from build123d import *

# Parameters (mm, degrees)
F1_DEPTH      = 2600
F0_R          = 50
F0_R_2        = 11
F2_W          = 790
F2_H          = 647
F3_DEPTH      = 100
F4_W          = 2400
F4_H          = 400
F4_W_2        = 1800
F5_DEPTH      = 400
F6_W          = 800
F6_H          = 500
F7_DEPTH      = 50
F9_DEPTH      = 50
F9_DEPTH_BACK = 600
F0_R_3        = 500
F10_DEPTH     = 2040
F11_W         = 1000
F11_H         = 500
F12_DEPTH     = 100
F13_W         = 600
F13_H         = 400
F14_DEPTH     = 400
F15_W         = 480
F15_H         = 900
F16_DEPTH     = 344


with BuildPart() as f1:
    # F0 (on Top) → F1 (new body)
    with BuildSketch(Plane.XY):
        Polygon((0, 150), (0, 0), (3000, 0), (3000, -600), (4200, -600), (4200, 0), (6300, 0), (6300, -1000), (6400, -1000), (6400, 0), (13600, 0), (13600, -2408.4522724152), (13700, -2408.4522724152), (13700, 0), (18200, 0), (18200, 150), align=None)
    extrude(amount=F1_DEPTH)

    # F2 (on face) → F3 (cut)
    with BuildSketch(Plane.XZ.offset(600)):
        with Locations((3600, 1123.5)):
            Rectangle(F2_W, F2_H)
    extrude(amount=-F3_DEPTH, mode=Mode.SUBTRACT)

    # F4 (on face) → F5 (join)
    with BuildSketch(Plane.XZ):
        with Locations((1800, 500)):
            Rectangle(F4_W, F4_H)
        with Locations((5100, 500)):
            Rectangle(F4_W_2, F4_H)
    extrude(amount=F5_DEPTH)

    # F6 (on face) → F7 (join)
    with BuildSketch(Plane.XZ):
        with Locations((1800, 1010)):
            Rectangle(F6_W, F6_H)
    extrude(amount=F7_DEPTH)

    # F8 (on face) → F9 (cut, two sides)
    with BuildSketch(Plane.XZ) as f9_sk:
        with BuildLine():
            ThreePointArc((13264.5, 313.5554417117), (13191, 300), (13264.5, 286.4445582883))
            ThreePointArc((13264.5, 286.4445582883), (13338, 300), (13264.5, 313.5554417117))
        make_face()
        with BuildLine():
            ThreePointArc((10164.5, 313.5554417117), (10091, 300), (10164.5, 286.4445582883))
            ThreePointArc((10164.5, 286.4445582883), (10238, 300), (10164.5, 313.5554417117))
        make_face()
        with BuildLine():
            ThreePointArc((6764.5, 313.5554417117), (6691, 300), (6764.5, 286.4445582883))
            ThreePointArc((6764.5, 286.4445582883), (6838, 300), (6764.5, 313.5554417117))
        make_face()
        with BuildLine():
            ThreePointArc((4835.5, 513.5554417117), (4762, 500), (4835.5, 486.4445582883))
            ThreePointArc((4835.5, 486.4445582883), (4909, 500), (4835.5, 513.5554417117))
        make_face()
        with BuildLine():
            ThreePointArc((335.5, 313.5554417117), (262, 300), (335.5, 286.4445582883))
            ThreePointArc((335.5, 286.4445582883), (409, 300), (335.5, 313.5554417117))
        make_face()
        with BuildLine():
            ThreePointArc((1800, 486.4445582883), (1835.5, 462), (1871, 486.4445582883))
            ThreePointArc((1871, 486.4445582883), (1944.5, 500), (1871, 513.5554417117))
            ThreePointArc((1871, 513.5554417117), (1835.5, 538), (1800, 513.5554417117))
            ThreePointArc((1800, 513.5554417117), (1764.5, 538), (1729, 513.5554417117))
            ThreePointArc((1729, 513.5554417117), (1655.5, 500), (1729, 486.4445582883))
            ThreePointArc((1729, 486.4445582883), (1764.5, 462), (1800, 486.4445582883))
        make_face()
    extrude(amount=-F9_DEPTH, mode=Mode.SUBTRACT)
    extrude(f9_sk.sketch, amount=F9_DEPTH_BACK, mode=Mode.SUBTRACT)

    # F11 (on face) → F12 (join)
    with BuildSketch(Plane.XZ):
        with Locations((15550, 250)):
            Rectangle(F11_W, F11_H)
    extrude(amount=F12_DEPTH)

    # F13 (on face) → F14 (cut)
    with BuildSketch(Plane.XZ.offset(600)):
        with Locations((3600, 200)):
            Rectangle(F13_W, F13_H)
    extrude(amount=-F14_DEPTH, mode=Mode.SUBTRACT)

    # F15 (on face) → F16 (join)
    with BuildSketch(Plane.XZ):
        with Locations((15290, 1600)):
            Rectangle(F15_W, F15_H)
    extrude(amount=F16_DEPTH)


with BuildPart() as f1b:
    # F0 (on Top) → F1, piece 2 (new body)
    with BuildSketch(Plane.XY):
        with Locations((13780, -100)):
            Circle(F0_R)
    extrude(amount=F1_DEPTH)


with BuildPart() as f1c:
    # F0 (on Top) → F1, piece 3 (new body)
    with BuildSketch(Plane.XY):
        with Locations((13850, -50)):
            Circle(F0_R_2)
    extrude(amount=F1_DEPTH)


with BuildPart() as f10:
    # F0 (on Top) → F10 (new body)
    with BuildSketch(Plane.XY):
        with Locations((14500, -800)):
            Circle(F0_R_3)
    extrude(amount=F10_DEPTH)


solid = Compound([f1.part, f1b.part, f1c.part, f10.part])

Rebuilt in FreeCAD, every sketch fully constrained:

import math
import FreeCAD as App
import Part
import Sketcher

doc = App.newDocument("Part")
body = doc.addObject("PartDesign::Body", "Body")

# Sketch on XY plane
sketch1 = body.newObject("Sketcher::SketchObject", "Sketch")
sketch1.AttachmentSupport = (doc.getObject("XY_Plane"), [""])
sketch1.MapMode = "FlatFace"
sketch1.addGeometry([
    Part.LineSegment(App.Vector(0, 150, 0), App.Vector(0, 0, 0)),  # 0
    Part.LineSegment(App.Vector(0, 0, 0), App.Vector(3000, 0, 0)),  # 1
    Part.LineSegment(App.Vector(3000, 0, 0), App.Vector(3000, -600, 0)),  # 2
    Part.LineSegment(App.Vector(3000, -600, 0), App.Vector(4200, -600, 0)),  # 3
    Part.LineSegment(App.Vector(4200, -600, 0), App.Vector(4200, 0, 0)),  # 4
    Part.LineSegment(App.Vector(4200, 0, 0), App.Vector(6300, 0, 0)),  # 5
    Part.LineSegment(App.Vector(6300, 0, 0), App.Vector(6300, -1000, 0)),  # 6
    Part.LineSegment(App.Vector(6300, -1000, 0), App.Vector(6400, -1000, 0)),  # 7
    Part.LineSegment(App.Vector(6400, -1000, 0), App.Vector(6400, 0, 0)),  # 8
    Part.LineSegment(App.Vector(6400, 0, 0), App.Vector(13600, 0, 0)),  # 9
    Part.LineSegment(App.Vector(13600, 0, 0), App.Vector(13600, -2408, 0)),  # 10
    Part.LineSegment(App.Vector(13600, -2408, 0), App.Vector(13700, -2408, 0)),  # 11
    Part.LineSegment(App.Vector(13700, -2408, 0), App.Vector(13700, 0, 0)),  # 12
    Part.LineSegment(App.Vector(13700, 0, 0), App.Vector(18200, 0, 0)),  # 13
    Part.LineSegment(App.Vector(18200, 0, 0), App.Vector(18200, 150, 0)),  # 14
    Part.LineSegment(App.Vector(18200, 150, 0), App.Vector(0, 150, 0)),  # 15
], False)
sketch1.addConstraint([
    Sketcher.Constraint("Coincident", 0, 2, 1, 1),
    Sketcher.Constraint("Coincident", 1, 2, 2, 1),
    Sketcher.Constraint("Coincident", 2, 2, 3, 1),
    Sketcher.Constraint("Coincident", 3, 2, 4, 1),
    Sketcher.Constraint("Coincident", 4, 2, 5, 1),
    Sketcher.Constraint("Coincident", 5, 2, 6, 1),
    Sketcher.Constraint("Coincident", 6, 2, 7, 1),
    Sketcher.Constraint("Coincident", 7, 2, 8, 1),
    Sketcher.Constraint("Coincident", 8, 2, 9, 1),
    Sketcher.Constraint("Coincident", 9, 2, 10, 1),
    Sketcher.Constraint("Coincident", 10, 2, 11, 1),
    Sketcher.Constraint("Coincident", 11, 2, 12, 1),
    Sketcher.Constraint("Coincident", 12, 2, 13, 1),
    Sketcher.Constraint("Coincident", 13, 2, 14, 1),
    Sketcher.Constraint("Coincident", 14, 2, 15, 1),
    Sketcher.Constraint("Coincident", 15, 2, 0, 1),
    Sketcher.Constraint("Vertical", 0),
    Sketcher.Constraint("Horizontal", 1),
    Sketcher.Constraint("Vertical", 2),
    Sketcher.Constraint("Horizontal", 3),
    Sketcher.Constraint("Vertical", 4),
    Sketcher.Constraint("Horizontal", 5),
    Sketcher.Constraint("Vertical", 6),
    Sketcher.Constraint("Horizontal", 7),
    Sketcher.Constraint("Vertical", 8),
    Sketcher.Constraint("Horizontal", 9),
    Sketcher.Constraint("Vertical", 10),
    Sketcher.Constraint("Horizontal", 11),
    Sketcher.Constraint("Vertical", 12),
    Sketcher.Constraint("Horizontal", 13),
    Sketcher.Constraint("Vertical", 14),
    Sketcher.Constraint("Horizontal", 15),
    Sketcher.Constraint("Coincident", 0, 2, -1, 1),
    Sketcher.Constraint("PointOnObject", 4, 2, -1),
    Sketcher.Constraint("PointOnObject", 8, 2, -1),
    Sketcher.Constraint("PointOnObject", 12, 2, -1),
    Sketcher.Constraint("Equal", 7, 11),
    Sketcher.Constraint("DistanceX", 1, 1, 1, 2, 3000.0),
    Sketcher.Constraint("DistanceX", 3, 1, 3, 2, 1200.0),
    Sketcher.Constraint("DistanceX", 5, 1, 5, 2, 2100.0),
    Sketcher.Constraint("DistanceX", 7, 1, 7, 2, 100.0),
    Sketcher.Constraint("DistanceX", 9, 1, 9, 2, 7200.0),
    Sketcher.Constraint("DistanceX", 13, 1, 13, 2, 4500.0),
    Sketcher.Constraint("DistanceY", 0, 2, 0, 1, 150.0),
    Sketcher.Constraint("DistanceY", 2, 2, 2, 1, 600.0),
    Sketcher.Constraint("DistanceY", 6, 2, 6, 1, 1000.0),
    Sketcher.Constraint("DistanceY", 10, 2, 10, 1, 2408.452272),
])
pad1 = body.newObject("PartDesign::Pad", "Pad")
pad1.Profile = sketch1
pad1.Length = 2600

# Sketch on XZ plane
sketch2 = body.newObject("Sketcher::SketchObject", "Sketch001")
sketch2.AttachmentSupport = (doc.getObject("XZ_Plane"), [""])
sketch2.MapMode = "FlatFace"
sketch2.AttachmentOffset = App.Placement(App.Vector(0, 0, 600), App.Rotation())
sketch2.addGeometry([
    Part.LineSegment(App.Vector(3205, 1447, 0), App.Vector(3205, 800, 0)),
    Part.LineSegment(App.Vector(3205, 800, 0), App.Vector(3995, 800, 0)),
    Part.LineSegment(App.Vector(3995, 800, 0), App.Vector(3995, 1447, 0)),
    Part.LineSegment(App.Vector(3995, 1447, 0), App.Vector(3205, 1447, 0)),
], False)
sketch2.addConstraint([
    Sketcher.Constraint("Coincident", 0, 2, 1, 1),
    Sketcher.Constraint("Coincident", 1, 2, 2, 1),
    Sketcher.Constraint("Coincident", 2, 2, 3, 1),
    Sketcher.Constraint("Coincident", 3, 2, 0, 1),
    Sketcher.Constraint("Vertical", 0),
    Sketcher.Constraint("Horizontal", 1),
    Sketcher.Constraint("Vertical", 2),
    Sketcher.Constraint("Horizontal", 3),
    Sketcher.Constraint("DistanceX", 1, 1, 1, 2, 790.0),
    Sketcher.Constraint("DistanceY", 0, 2, 0, 1, 647.0),
    Sketcher.Constraint("DistanceX", -1, 1, 0, 2, 3205.0),
    Sketcher.Constraint("DistanceY", -1, 1, 0, 2, 800.0),
])
pocket1 = body.newObject("PartDesign::Pocket", "Pocket")
pocket1.Profile = sketch2
pocket1.Length = 100

# Sketch on XZ plane
sketch3 = body.newObject("Sketcher::SketchObject", "Sketch002")
sketch3.AttachmentSupport = (doc.getObject("XZ_Plane"), [""])
sketch3.MapMode = "FlatFace"
sketch3.addGeometry([
    Part.LineSegment(App.Vector(600, 700, 0), App.Vector(600, 300, 0)),  # 0
    Part.LineSegment(App.Vector(600, 300, 0), App.Vector(3000, 300, 0)),  # 1
    Part.LineSegment(App.Vector(3000, 300, 0), App.Vector(3000, 700, 0)),  # 2
    Part.LineSegment(App.Vector(3000, 700, 0), App.Vector(600, 700, 0)),  # 3
    Part.LineSegment(App.Vector(4200, 700, 0), App.Vector(4200, 300, 0)),  # 4
    Part.LineSegment(App.Vector(4200, 300, 0), App.Vector(6000, 300, 0)),  # 5
    Part.LineSegment(App.Vector(6000, 300, 0), App.Vector(6000, 700, 0)),  # 6
    Part.LineSegment(App.Vector(6000, 700, 0), App.Vector(4200, 700, 0)),  # 7
], False)
sketch3.addConstraint([
    Sketcher.Constraint("Coincident", 0, 2, 1, 1),
    Sketcher.Constraint("Coincident", 1, 2, 2, 1),
    Sketcher.Constraint("Coincident", 2, 2, 3, 1),
    Sketcher.Constraint("Coincident", 3, 2, 0, 1),
    Sketcher.Constraint("Coincident", 4, 2, 5, 1),
    Sketcher.Constraint("Coincident", 5, 2, 6, 1),
    Sketcher.Constraint("Coincident", 6, 2, 7, 1),
    Sketcher.Constraint("Coincident", 7, 2, 4, 1),
    Sketcher.Constraint("Vertical", 0),
    Sketcher.Constraint("Horizontal", 1),
    Sketcher.Constraint("Vertical", 2),
    Sketcher.Constraint("Horizontal", 3),
    Sketcher.Constraint("Vertical", 4),
    Sketcher.Constraint("Horizontal", 5),
    Sketcher.Constraint("Vertical", 6),
    Sketcher.Constraint("Horizontal", 7),
    Sketcher.Constraint("Horizontal", 1, 2, 4, 2),
    Sketcher.Constraint("Horizontal", 3, 2, 6, 2),
    Sketcher.Constraint("DistanceX", 1, 1, 1, 2, 2400.0),
    Sketcher.Constraint("DistanceX", 5, 1, 5, 2, 1800.0),
    Sketcher.Constraint("DistanceY", 0, 2, 0, 1, 400.0),
    Sketcher.Constraint("DistanceX", -1, 1, 0, 2, 600.0),
    Sketcher.Constraint("DistanceY", -1, 1, 0, 2, 300.0),
    Sketcher.Constraint("DistanceX", -1, 1, 4, 2, 4200.0),
])
pad2 = body.newObject("PartDesign::Pad", "Pad001")
pad2.Profile = sketch3
pad2.Length = 400

# Sketch on XZ plane
sketch4 = body.newObject("Sketcher::SketchObject", "Sketch003")
sketch4.AttachmentSupport = (doc.getObject("XZ_Plane"), [""])
sketch4.MapMode = "FlatFace"
sketch4.addGeometry([
    Part.LineSegment(App.Vector(1400, 1260, 0), App.Vector(1400, 760, 0)),
    Part.LineSegment(App.Vector(1400, 760, 0), App.Vector(2200, 760, 0)),
    Part.LineSegment(App.Vector(2200, 760, 0), App.Vector(2200, 1260, 0)),
    Part.LineSegment(App.Vector(2200, 1260, 0), App.Vector(1400, 1260, 0)),
], False)
sketch4.addConstraint([
    Sketcher.Constraint("Coincident", 0, 2, 1, 1),
    Sketcher.Constraint("Coincident", 1, 2, 2, 1),
    Sketcher.Constraint("Coincident", 2, 2, 3, 1),
    Sketcher.Constraint("Coincident", 3, 2, 0, 1),
    Sketcher.Constraint("Vertical", 0),
    Sketcher.Constraint("Horizontal", 1),
    Sketcher.Constraint("Vertical", 2),
    Sketcher.Constraint("Horizontal", 3),
    Sketcher.Constraint("DistanceX", 1, 1, 1, 2, 800.0),
    Sketcher.Constraint("DistanceY", 0, 2, 0, 1, 500.0),
    Sketcher.Constraint("DistanceX", -1, 1, 0, 2, 1400.0),
    Sketcher.Constraint("DistanceY", -1, 1, 0, 2, 760.0),
])
pad3 = body.newObject("PartDesign::Pad", "Pad002")
pad3.Profile = sketch4
pad3.Length = 50

# Sketch on XZ plane
sketch5 = body.newObject("Sketcher::SketchObject", "Sketch004")
sketch5.AttachmentSupport = (doc.getObject("XZ_Plane"), [""])
sketch5.MapMode = "FlatFace"
sketch5.addGeometry([
    Part.ArcOfCircle(Part.Circle(App.Vector(13229, 300, 0), App.Vector(0, 0, 1), 38), math.radians(21), math.radians(339)),  # 0
    Part.ArcOfCircle(Part.Circle(App.Vector(13300, 300, 0), App.Vector(0, 0, 1), 38), math.radians(-159), math.radians(159)),  # 1
    Part.ArcOfCircle(Part.Circle(App.Vector(10129, 300, 0), App.Vector(0, 0, 1), 38), math.radians(21), math.radians(339)),  # 2
    Part.ArcOfCircle(Part.Circle(App.Vector(10200, 300, 0), App.Vector(0, 0, 1), 38), math.radians(-159), math.radians(159)),  # 3
    Part.ArcOfCircle(Part.Circle(App.Vector(6729, 300, 0), App.Vector(0, 0, 1), 38), math.radians(21), math.radians(339)),  # 4
    Part.ArcOfCircle(Part.Circle(App.Vector(6800, 300, 0), App.Vector(0, 0, 1), 38), math.radians(-159), math.radians(159)),  # 5
    Part.ArcOfCircle(Part.Circle(App.Vector(4800, 500, 0), App.Vector(0, 0, 1), 38), math.radians(21), math.radians(339)),  # 6
    Part.ArcOfCircle(Part.Circle(App.Vector(4871, 500, 0), App.Vector(0, 0, 1), 38), math.radians(-159), math.radians(159)),  # 7
    Part.ArcOfCircle(Part.Circle(App.Vector(300, 300, 0), App.Vector(0, 0, 1), 38), math.radians(21), math.radians(339)),  # 8
    Part.ArcOfCircle(Part.Circle(App.Vector(371, 300, 0), App.Vector(0, 0, 1), 38), math.radians(-159), math.radians(159)),  # 9
    Part.ArcOfCircle(Part.Circle(App.Vector(1836, 500, 0), App.Vector(0, 0, 1), 38), math.radians(-159), math.radians(-21)),  # 10
    Part.ArcOfCircle(Part.Circle(App.Vector(1906, 500, 0), App.Vector(0, 0, 1), 38), math.radians(-159), math.radians(159)),  # 11
    Part.ArcOfCircle(Part.Circle(App.Vector(1836, 500, 0), App.Vector(0, 0, 1), 38), math.radians(21), math.radians(159)),  # 12
    Part.ArcOfCircle(Part.Circle(App.Vector(1764, 500, 0), App.Vector(0, 0, 1), 38), math.radians(21), math.radians(159)),  # 13
    Part.ArcOfCircle(Part.Circle(App.Vector(1694, 500, 0), App.Vector(0, 0, 1), 38), math.radians(21), math.radians(339)),  # 14
    Part.ArcOfCircle(Part.Circle(App.Vector(1764, 500, 0), App.Vector(0, 0, 1), 38), math.radians(-159), math.radians(-21)),  # 15
], False)
sketch5.addConstraint([
    Sketcher.Constraint("Coincident", 0, 1, 1, 2),
    Sketcher.Constraint("Coincident", 1, 1, 0, 2),
    Sketcher.Constraint("Coincident", 2, 1, 3, 2),
    Sketcher.Constraint("Coincident", 3, 1, 2, 2),
    Sketcher.Constraint("Coincident", 4, 1, 5, 2),
    Sketcher.Constraint("Coincident", 5, 1, 4, 2),
    Sketcher.Constraint("Coincident", 6, 1, 7, 2),
    Sketcher.Constraint("Coincident", 7, 1, 6, 2),
    Sketcher.Constraint("Coincident", 8, 1, 9, 2),
    Sketcher.Constraint("Coincident", 9, 1, 8, 2),
    Sketcher.Constraint("Coincident", 10, 2, 11, 1),
    Sketcher.Constraint("Coincident", 11, 2, 12, 1),
    Sketcher.Constraint("Coincident", 12, 2, 13, 1),
    Sketcher.Constraint("Coincident", 13, 2, 14, 1),
    Sketcher.Constraint("Coincident", 14, 2, 15, 1),
    Sketcher.Constraint("Coincident", 15, 2, 10, 1),
    Sketcher.Constraint("Coincident", 12, 3, 10, 3),
    Sketcher.Constraint("Coincident", 15, 3, 13, 3),
    Sketcher.Constraint("Equal", 0, 1),
    Sketcher.Constraint("Equal", 1, 2),
    Sketcher.Constraint("Equal", 2, 3),
    Sketcher.Constraint("Equal", 3, 4),
    Sketcher.Constraint("Equal", 4, 5),
    Sketcher.Constraint("Equal", 5, 6),
    Sketcher.Constraint("Equal", 6, 7),
    Sketcher.Constraint("Equal", 7, 8),
    Sketcher.Constraint("Equal", 8, 9),
    Sketcher.Constraint("Equal", 9, 10),
    Sketcher.Constraint("Equal", 10, 11),
    Sketcher.Constraint("Equal", 11, 12),
    Sketcher.Constraint("Equal", 12, 13),
    Sketcher.Constraint("Equal", 13, 14),
    Sketcher.Constraint("Equal", 14, 15),
    Sketcher.Constraint("Horizontal", 0, 3, 1, 3),
    Sketcher.Constraint("Horizontal", 1, 3, 2, 3),
    Sketcher.Constraint("Horizontal", 2, 3, 3, 3),
    Sketcher.Constraint("Horizontal", 3, 3, 4, 3),
    Sketcher.Constraint("Horizontal", 4, 3, 5, 3),
    Sketcher.Constraint("Horizontal", 6, 3, 7, 3),
    Sketcher.Constraint("Horizontal", 5, 3, 8, 3),
    Sketcher.Constraint("Horizontal", 8, 3, 9, 3),
    Sketcher.Constraint("Horizontal", 7, 3, 10, 3),
    Sketcher.Constraint("Horizontal", 10, 3, 11, 3),
    Sketcher.Constraint("Horizontal", 12, 3, 13, 3),
    Sketcher.Constraint("Horizontal", 13, 3, 14, 3),
    Sketcher.Constraint("Horizontal", 0, 1, 2, 1),
    Sketcher.Constraint("Horizontal", 2, 1, 4, 1),
    Sketcher.Constraint("Horizontal", 4, 1, 8, 1),
    Sketcher.Constraint("Horizontal", 7, 1, 10, 2),
    Sketcher.Constraint("Horizontal", 11, 2, 12, 2),
    Sketcher.Constraint("Horizontal", 12, 2, 13, 2),
    Sketcher.Constraint("Radius", 0, 38.0),
    Sketcher.Constraint("DistanceX", -1, 1, 0, 3, 13229.0),
    Sketcher.Constraint("DistanceY", -1, 1, 0, 3, 300.0),
    Sketcher.Constraint("DistanceX", -1, 1, 1, 3, 13300.0),
    Sketcher.Constraint("DistanceX", -1, 1, 2, 3, 10129.0),
    Sketcher.Constraint("DistanceX", -1, 1, 4, 3, 6729.0),
    Sketcher.Constraint("DistanceX", -1, 1, 6, 3, 4800.0),
    Sketcher.Constraint("DistanceY", -1, 1, 6, 3, 500.0),
    Sketcher.Constraint("DistanceX", -1, 1, 7, 3, 4871.0),
    Sketcher.Constraint("DistanceX", -1, 1, 8, 3, 300.0),
    Sketcher.Constraint("DistanceX", -1, 1, 10, 2, 1871.0),
])
pocket2 = body.newObject("PartDesign::Pocket", "Pocket001")
pocket2.Profile = sketch5
pocket2.Type = "TwoLengths"
pocket2.Length = 50
pocket2.Length2 = 600

# Sketch on XZ plane
sketch6 = body.newObject("Sketcher::SketchObject", "Sketch005")
sketch6.AttachmentSupport = (doc.getObject("XZ_Plane"), [""])
sketch6.MapMode = "FlatFace"
sketch6.addGeometry([
    Part.LineSegment(App.Vector(15050, 500, 0), App.Vector(15050, 0, 0)),
    Part.LineSegment(App.Vector(15050, 0, 0), App.Vector(16050, 0, 0)),
    Part.LineSegment(App.Vector(16050, 0, 0), App.Vector(16050, 500, 0)),
    Part.LineSegment(App.Vector(16050, 500, 0), App.Vector(15050, 500, 0)),
], False)
sketch6.addConstraint([
    Sketcher.Constraint("Coincident", 0, 2, 1, 1),
    Sketcher.Constraint("Coincident", 1, 2, 2, 1),
    Sketcher.Constraint("Coincident", 2, 2, 3, 1),
    Sketcher.Constraint("Coincident", 3, 2, 0, 1),
    Sketcher.Constraint("Vertical", 0),
    Sketcher.Constraint("Horizontal", 1),
    Sketcher.Constraint("Vertical", 2),
    Sketcher.Constraint("Horizontal", 3),
    Sketcher.Constraint("PointOnObject", 0, 2, -1),
    Sketcher.Constraint("DistanceX", 1, 1, 1, 2, 1000.0),
    Sketcher.Constraint("DistanceY", 0, 2, 0, 1, 500.0),
    Sketcher.Constraint("DistanceX", -1, 1, 0, 2, 15050.0),
])
pad4 = body.newObject("PartDesign::Pad", "Pad003")
pad4.Profile = sketch6
pad4.Length = 100

# Sketch on XZ plane
sketch7 = body.newObject("Sketcher::SketchObject", "Sketch006")
sketch7.AttachmentSupport = (doc.getObject("XZ_Plane"), [""])
sketch7.MapMode = "FlatFace"
sketch7.AttachmentOffset = App.Placement(App.Vector(0, 0, 600), App.Rotation())
sketch7.addGeometry([
    Part.LineSegment(App.Vector(3300, 400, 0), App.Vector(3300, 0, 0)),
    Part.LineSegment(App.Vector(3300, 0, 0), App.Vector(3900, 0, 0)),
    Part.LineSegment(App.Vector(3900, 0, 0), App.Vector(3900, 400, 0)),
    Part.LineSegment(App.Vector(3900, 400, 0), App.Vector(3300, 400, 0)),
], False)
sketch7.addConstraint([
    Sketcher.Constraint("Coincident", 0, 2, 1, 1),
    Sketcher.Constraint("Coincident", 1, 2, 2, 1),
    Sketcher.Constraint("Coincident", 2, 2, 3, 1),
    Sketcher.Constraint("Coincident", 3, 2, 0, 1),
    Sketcher.Constraint("Vertical", 0),
    Sketcher.Constraint("Horizontal", 1),
    Sketcher.Constraint("Vertical", 2),
    Sketcher.Constraint("Horizontal", 3),
    Sketcher.Constraint("PointOnObject", 0, 2, -1),
    Sketcher.Constraint("DistanceX", 1, 1, 1, 2, 600.0),
    Sketcher.Constraint("DistanceY", 0, 2, 0, 1, 400.0),
    Sketcher.Constraint("DistanceX", -1, 1, 0, 2, 3300.0),
])
pocket3 = body.newObject("PartDesign::Pocket", "Pocket002")
pocket3.Profile = sketch7
pocket3.Length = 400

# Sketch on XZ plane
sketch8 = body.newObject("Sketcher::SketchObject", "Sketch007")
sketch8.AttachmentSupport = (doc.getObject("XZ_Plane"), [""])
sketch8.MapMode = "FlatFace"
sketch8.addGeometry([
    Part.LineSegment(App.Vector(15050, 2050, 0), App.Vector(15050, 1150, 0)),
    Part.LineSegment(App.Vector(15050, 1150, 0), App.Vector(15530, 1150, 0)),
    Part.LineSegment(App.Vector(15530, 1150, 0), App.Vector(15530, 2050, 0)),
    Part.LineSegment(App.Vector(15530, 2050, 0), App.Vector(15050, 2050, 0)),
], False)
sketch8.addConstraint([
    Sketcher.Constraint("Coincident", 0, 2, 1, 1),
    Sketcher.Constraint("Coincident", 1, 2, 2, 1),
    Sketcher.Constraint("Coincident", 2, 2, 3, 1),
    Sketcher.Constraint("Coincident", 3, 2, 0, 1),
    Sketcher.Constraint("Vertical", 0),
    Sketcher.Constraint("Horizontal", 1),
    Sketcher.Constraint("Vertical", 2),
    Sketcher.Constraint("Horizontal", 3),
    Sketcher.Constraint("DistanceX", 1, 1, 1, 2, 480.0),
    Sketcher.Constraint("DistanceY", 0, 2, 0, 1, 900.0),
    Sketcher.Constraint("DistanceX", -1, 1, 0, 2, 15050.0),
    Sketcher.Constraint("DistanceY", -1, 1, 0, 2, 1150.0),
])
pad5 = body.newObject("PartDesign::Pad", "Pad004")
pad5.Profile = sketch8
pad5.Length = 344
body2 = doc.addObject("PartDesign::Body", "Body001")

# Sketch on XY plane
sketch9 = body2.newObject("Sketcher::SketchObject", "Sketch008")
sketch9.AttachmentSupport = (doc.getObject("XY_Plane001"), [""])
sketch9.MapMode = "FlatFace"
sketch9.addGeometry(Part.Circle(App.Vector(13780, -100, 0), App.Vector(0, 0, 1), 50), False)
sketch9.addConstraint([
    Sketcher.Constraint("Diameter", 0, 100.0),
    Sketcher.Constraint("DistanceX", -1, 1, 0, 3, 13780.0),
    Sketcher.Constraint("DistanceY", 0, 3, -1, 1, 100.0),
])
pad6 = body2.newObject("PartDesign::Pad", "Pad005")
pad6.Profile = sketch9
pad6.Length = 2600
body3 = doc.addObject("PartDesign::Body", "Body002")

# Sketch on XY plane
sketch10 = body3.newObject("Sketcher::SketchObject", "Sketch009")
sketch10.AttachmentSupport = (doc.getObject("XY_Plane002"), [""])
sketch10.MapMode = "FlatFace"
sketch10.addGeometry(Part.Circle(App.Vector(13850, -50, 0), App.Vector(0, 0, 1), 11), False)
sketch10.addConstraint([
    Sketcher.Constraint("Diameter", 0, 22.0),
    Sketcher.Constraint("DistanceX", -1, 1, 0, 3, 13850.0),
    Sketcher.Constraint("DistanceY", 0, 3, -1, 1, 50.0),
])
pad7 = body3.newObject("PartDesign::Pad", "Pad006")
pad7.Profile = sketch10
pad7.Length = 2600
body4 = doc.addObject("PartDesign::Body", "Body003")

# Sketch on XY plane
sketch11 = body4.newObject("Sketcher::SketchObject", "Sketch010")
sketch11.AttachmentSupport = (doc.getObject("XY_Plane003"), [""])
sketch11.MapMode = "FlatFace"
sketch11.addGeometry(Part.Circle(App.Vector(14500, -800, 0), App.Vector(0, 0, 1), 500), False)
sketch11.addConstraint([
    Sketcher.Constraint("Diameter", 0, 1000.0),
    Sketcher.Constraint("DistanceX", -1, 1, 0, 3, 14500.0),
    Sketcher.Constraint("DistanceY", 0, 3, -1, 1, 800.0),
])
pad8 = body4.newObject("PartDesign::Pad", "Pad007")
pad8.Profile = sketch11
pad8.Length = 2040

doc.recompute()
